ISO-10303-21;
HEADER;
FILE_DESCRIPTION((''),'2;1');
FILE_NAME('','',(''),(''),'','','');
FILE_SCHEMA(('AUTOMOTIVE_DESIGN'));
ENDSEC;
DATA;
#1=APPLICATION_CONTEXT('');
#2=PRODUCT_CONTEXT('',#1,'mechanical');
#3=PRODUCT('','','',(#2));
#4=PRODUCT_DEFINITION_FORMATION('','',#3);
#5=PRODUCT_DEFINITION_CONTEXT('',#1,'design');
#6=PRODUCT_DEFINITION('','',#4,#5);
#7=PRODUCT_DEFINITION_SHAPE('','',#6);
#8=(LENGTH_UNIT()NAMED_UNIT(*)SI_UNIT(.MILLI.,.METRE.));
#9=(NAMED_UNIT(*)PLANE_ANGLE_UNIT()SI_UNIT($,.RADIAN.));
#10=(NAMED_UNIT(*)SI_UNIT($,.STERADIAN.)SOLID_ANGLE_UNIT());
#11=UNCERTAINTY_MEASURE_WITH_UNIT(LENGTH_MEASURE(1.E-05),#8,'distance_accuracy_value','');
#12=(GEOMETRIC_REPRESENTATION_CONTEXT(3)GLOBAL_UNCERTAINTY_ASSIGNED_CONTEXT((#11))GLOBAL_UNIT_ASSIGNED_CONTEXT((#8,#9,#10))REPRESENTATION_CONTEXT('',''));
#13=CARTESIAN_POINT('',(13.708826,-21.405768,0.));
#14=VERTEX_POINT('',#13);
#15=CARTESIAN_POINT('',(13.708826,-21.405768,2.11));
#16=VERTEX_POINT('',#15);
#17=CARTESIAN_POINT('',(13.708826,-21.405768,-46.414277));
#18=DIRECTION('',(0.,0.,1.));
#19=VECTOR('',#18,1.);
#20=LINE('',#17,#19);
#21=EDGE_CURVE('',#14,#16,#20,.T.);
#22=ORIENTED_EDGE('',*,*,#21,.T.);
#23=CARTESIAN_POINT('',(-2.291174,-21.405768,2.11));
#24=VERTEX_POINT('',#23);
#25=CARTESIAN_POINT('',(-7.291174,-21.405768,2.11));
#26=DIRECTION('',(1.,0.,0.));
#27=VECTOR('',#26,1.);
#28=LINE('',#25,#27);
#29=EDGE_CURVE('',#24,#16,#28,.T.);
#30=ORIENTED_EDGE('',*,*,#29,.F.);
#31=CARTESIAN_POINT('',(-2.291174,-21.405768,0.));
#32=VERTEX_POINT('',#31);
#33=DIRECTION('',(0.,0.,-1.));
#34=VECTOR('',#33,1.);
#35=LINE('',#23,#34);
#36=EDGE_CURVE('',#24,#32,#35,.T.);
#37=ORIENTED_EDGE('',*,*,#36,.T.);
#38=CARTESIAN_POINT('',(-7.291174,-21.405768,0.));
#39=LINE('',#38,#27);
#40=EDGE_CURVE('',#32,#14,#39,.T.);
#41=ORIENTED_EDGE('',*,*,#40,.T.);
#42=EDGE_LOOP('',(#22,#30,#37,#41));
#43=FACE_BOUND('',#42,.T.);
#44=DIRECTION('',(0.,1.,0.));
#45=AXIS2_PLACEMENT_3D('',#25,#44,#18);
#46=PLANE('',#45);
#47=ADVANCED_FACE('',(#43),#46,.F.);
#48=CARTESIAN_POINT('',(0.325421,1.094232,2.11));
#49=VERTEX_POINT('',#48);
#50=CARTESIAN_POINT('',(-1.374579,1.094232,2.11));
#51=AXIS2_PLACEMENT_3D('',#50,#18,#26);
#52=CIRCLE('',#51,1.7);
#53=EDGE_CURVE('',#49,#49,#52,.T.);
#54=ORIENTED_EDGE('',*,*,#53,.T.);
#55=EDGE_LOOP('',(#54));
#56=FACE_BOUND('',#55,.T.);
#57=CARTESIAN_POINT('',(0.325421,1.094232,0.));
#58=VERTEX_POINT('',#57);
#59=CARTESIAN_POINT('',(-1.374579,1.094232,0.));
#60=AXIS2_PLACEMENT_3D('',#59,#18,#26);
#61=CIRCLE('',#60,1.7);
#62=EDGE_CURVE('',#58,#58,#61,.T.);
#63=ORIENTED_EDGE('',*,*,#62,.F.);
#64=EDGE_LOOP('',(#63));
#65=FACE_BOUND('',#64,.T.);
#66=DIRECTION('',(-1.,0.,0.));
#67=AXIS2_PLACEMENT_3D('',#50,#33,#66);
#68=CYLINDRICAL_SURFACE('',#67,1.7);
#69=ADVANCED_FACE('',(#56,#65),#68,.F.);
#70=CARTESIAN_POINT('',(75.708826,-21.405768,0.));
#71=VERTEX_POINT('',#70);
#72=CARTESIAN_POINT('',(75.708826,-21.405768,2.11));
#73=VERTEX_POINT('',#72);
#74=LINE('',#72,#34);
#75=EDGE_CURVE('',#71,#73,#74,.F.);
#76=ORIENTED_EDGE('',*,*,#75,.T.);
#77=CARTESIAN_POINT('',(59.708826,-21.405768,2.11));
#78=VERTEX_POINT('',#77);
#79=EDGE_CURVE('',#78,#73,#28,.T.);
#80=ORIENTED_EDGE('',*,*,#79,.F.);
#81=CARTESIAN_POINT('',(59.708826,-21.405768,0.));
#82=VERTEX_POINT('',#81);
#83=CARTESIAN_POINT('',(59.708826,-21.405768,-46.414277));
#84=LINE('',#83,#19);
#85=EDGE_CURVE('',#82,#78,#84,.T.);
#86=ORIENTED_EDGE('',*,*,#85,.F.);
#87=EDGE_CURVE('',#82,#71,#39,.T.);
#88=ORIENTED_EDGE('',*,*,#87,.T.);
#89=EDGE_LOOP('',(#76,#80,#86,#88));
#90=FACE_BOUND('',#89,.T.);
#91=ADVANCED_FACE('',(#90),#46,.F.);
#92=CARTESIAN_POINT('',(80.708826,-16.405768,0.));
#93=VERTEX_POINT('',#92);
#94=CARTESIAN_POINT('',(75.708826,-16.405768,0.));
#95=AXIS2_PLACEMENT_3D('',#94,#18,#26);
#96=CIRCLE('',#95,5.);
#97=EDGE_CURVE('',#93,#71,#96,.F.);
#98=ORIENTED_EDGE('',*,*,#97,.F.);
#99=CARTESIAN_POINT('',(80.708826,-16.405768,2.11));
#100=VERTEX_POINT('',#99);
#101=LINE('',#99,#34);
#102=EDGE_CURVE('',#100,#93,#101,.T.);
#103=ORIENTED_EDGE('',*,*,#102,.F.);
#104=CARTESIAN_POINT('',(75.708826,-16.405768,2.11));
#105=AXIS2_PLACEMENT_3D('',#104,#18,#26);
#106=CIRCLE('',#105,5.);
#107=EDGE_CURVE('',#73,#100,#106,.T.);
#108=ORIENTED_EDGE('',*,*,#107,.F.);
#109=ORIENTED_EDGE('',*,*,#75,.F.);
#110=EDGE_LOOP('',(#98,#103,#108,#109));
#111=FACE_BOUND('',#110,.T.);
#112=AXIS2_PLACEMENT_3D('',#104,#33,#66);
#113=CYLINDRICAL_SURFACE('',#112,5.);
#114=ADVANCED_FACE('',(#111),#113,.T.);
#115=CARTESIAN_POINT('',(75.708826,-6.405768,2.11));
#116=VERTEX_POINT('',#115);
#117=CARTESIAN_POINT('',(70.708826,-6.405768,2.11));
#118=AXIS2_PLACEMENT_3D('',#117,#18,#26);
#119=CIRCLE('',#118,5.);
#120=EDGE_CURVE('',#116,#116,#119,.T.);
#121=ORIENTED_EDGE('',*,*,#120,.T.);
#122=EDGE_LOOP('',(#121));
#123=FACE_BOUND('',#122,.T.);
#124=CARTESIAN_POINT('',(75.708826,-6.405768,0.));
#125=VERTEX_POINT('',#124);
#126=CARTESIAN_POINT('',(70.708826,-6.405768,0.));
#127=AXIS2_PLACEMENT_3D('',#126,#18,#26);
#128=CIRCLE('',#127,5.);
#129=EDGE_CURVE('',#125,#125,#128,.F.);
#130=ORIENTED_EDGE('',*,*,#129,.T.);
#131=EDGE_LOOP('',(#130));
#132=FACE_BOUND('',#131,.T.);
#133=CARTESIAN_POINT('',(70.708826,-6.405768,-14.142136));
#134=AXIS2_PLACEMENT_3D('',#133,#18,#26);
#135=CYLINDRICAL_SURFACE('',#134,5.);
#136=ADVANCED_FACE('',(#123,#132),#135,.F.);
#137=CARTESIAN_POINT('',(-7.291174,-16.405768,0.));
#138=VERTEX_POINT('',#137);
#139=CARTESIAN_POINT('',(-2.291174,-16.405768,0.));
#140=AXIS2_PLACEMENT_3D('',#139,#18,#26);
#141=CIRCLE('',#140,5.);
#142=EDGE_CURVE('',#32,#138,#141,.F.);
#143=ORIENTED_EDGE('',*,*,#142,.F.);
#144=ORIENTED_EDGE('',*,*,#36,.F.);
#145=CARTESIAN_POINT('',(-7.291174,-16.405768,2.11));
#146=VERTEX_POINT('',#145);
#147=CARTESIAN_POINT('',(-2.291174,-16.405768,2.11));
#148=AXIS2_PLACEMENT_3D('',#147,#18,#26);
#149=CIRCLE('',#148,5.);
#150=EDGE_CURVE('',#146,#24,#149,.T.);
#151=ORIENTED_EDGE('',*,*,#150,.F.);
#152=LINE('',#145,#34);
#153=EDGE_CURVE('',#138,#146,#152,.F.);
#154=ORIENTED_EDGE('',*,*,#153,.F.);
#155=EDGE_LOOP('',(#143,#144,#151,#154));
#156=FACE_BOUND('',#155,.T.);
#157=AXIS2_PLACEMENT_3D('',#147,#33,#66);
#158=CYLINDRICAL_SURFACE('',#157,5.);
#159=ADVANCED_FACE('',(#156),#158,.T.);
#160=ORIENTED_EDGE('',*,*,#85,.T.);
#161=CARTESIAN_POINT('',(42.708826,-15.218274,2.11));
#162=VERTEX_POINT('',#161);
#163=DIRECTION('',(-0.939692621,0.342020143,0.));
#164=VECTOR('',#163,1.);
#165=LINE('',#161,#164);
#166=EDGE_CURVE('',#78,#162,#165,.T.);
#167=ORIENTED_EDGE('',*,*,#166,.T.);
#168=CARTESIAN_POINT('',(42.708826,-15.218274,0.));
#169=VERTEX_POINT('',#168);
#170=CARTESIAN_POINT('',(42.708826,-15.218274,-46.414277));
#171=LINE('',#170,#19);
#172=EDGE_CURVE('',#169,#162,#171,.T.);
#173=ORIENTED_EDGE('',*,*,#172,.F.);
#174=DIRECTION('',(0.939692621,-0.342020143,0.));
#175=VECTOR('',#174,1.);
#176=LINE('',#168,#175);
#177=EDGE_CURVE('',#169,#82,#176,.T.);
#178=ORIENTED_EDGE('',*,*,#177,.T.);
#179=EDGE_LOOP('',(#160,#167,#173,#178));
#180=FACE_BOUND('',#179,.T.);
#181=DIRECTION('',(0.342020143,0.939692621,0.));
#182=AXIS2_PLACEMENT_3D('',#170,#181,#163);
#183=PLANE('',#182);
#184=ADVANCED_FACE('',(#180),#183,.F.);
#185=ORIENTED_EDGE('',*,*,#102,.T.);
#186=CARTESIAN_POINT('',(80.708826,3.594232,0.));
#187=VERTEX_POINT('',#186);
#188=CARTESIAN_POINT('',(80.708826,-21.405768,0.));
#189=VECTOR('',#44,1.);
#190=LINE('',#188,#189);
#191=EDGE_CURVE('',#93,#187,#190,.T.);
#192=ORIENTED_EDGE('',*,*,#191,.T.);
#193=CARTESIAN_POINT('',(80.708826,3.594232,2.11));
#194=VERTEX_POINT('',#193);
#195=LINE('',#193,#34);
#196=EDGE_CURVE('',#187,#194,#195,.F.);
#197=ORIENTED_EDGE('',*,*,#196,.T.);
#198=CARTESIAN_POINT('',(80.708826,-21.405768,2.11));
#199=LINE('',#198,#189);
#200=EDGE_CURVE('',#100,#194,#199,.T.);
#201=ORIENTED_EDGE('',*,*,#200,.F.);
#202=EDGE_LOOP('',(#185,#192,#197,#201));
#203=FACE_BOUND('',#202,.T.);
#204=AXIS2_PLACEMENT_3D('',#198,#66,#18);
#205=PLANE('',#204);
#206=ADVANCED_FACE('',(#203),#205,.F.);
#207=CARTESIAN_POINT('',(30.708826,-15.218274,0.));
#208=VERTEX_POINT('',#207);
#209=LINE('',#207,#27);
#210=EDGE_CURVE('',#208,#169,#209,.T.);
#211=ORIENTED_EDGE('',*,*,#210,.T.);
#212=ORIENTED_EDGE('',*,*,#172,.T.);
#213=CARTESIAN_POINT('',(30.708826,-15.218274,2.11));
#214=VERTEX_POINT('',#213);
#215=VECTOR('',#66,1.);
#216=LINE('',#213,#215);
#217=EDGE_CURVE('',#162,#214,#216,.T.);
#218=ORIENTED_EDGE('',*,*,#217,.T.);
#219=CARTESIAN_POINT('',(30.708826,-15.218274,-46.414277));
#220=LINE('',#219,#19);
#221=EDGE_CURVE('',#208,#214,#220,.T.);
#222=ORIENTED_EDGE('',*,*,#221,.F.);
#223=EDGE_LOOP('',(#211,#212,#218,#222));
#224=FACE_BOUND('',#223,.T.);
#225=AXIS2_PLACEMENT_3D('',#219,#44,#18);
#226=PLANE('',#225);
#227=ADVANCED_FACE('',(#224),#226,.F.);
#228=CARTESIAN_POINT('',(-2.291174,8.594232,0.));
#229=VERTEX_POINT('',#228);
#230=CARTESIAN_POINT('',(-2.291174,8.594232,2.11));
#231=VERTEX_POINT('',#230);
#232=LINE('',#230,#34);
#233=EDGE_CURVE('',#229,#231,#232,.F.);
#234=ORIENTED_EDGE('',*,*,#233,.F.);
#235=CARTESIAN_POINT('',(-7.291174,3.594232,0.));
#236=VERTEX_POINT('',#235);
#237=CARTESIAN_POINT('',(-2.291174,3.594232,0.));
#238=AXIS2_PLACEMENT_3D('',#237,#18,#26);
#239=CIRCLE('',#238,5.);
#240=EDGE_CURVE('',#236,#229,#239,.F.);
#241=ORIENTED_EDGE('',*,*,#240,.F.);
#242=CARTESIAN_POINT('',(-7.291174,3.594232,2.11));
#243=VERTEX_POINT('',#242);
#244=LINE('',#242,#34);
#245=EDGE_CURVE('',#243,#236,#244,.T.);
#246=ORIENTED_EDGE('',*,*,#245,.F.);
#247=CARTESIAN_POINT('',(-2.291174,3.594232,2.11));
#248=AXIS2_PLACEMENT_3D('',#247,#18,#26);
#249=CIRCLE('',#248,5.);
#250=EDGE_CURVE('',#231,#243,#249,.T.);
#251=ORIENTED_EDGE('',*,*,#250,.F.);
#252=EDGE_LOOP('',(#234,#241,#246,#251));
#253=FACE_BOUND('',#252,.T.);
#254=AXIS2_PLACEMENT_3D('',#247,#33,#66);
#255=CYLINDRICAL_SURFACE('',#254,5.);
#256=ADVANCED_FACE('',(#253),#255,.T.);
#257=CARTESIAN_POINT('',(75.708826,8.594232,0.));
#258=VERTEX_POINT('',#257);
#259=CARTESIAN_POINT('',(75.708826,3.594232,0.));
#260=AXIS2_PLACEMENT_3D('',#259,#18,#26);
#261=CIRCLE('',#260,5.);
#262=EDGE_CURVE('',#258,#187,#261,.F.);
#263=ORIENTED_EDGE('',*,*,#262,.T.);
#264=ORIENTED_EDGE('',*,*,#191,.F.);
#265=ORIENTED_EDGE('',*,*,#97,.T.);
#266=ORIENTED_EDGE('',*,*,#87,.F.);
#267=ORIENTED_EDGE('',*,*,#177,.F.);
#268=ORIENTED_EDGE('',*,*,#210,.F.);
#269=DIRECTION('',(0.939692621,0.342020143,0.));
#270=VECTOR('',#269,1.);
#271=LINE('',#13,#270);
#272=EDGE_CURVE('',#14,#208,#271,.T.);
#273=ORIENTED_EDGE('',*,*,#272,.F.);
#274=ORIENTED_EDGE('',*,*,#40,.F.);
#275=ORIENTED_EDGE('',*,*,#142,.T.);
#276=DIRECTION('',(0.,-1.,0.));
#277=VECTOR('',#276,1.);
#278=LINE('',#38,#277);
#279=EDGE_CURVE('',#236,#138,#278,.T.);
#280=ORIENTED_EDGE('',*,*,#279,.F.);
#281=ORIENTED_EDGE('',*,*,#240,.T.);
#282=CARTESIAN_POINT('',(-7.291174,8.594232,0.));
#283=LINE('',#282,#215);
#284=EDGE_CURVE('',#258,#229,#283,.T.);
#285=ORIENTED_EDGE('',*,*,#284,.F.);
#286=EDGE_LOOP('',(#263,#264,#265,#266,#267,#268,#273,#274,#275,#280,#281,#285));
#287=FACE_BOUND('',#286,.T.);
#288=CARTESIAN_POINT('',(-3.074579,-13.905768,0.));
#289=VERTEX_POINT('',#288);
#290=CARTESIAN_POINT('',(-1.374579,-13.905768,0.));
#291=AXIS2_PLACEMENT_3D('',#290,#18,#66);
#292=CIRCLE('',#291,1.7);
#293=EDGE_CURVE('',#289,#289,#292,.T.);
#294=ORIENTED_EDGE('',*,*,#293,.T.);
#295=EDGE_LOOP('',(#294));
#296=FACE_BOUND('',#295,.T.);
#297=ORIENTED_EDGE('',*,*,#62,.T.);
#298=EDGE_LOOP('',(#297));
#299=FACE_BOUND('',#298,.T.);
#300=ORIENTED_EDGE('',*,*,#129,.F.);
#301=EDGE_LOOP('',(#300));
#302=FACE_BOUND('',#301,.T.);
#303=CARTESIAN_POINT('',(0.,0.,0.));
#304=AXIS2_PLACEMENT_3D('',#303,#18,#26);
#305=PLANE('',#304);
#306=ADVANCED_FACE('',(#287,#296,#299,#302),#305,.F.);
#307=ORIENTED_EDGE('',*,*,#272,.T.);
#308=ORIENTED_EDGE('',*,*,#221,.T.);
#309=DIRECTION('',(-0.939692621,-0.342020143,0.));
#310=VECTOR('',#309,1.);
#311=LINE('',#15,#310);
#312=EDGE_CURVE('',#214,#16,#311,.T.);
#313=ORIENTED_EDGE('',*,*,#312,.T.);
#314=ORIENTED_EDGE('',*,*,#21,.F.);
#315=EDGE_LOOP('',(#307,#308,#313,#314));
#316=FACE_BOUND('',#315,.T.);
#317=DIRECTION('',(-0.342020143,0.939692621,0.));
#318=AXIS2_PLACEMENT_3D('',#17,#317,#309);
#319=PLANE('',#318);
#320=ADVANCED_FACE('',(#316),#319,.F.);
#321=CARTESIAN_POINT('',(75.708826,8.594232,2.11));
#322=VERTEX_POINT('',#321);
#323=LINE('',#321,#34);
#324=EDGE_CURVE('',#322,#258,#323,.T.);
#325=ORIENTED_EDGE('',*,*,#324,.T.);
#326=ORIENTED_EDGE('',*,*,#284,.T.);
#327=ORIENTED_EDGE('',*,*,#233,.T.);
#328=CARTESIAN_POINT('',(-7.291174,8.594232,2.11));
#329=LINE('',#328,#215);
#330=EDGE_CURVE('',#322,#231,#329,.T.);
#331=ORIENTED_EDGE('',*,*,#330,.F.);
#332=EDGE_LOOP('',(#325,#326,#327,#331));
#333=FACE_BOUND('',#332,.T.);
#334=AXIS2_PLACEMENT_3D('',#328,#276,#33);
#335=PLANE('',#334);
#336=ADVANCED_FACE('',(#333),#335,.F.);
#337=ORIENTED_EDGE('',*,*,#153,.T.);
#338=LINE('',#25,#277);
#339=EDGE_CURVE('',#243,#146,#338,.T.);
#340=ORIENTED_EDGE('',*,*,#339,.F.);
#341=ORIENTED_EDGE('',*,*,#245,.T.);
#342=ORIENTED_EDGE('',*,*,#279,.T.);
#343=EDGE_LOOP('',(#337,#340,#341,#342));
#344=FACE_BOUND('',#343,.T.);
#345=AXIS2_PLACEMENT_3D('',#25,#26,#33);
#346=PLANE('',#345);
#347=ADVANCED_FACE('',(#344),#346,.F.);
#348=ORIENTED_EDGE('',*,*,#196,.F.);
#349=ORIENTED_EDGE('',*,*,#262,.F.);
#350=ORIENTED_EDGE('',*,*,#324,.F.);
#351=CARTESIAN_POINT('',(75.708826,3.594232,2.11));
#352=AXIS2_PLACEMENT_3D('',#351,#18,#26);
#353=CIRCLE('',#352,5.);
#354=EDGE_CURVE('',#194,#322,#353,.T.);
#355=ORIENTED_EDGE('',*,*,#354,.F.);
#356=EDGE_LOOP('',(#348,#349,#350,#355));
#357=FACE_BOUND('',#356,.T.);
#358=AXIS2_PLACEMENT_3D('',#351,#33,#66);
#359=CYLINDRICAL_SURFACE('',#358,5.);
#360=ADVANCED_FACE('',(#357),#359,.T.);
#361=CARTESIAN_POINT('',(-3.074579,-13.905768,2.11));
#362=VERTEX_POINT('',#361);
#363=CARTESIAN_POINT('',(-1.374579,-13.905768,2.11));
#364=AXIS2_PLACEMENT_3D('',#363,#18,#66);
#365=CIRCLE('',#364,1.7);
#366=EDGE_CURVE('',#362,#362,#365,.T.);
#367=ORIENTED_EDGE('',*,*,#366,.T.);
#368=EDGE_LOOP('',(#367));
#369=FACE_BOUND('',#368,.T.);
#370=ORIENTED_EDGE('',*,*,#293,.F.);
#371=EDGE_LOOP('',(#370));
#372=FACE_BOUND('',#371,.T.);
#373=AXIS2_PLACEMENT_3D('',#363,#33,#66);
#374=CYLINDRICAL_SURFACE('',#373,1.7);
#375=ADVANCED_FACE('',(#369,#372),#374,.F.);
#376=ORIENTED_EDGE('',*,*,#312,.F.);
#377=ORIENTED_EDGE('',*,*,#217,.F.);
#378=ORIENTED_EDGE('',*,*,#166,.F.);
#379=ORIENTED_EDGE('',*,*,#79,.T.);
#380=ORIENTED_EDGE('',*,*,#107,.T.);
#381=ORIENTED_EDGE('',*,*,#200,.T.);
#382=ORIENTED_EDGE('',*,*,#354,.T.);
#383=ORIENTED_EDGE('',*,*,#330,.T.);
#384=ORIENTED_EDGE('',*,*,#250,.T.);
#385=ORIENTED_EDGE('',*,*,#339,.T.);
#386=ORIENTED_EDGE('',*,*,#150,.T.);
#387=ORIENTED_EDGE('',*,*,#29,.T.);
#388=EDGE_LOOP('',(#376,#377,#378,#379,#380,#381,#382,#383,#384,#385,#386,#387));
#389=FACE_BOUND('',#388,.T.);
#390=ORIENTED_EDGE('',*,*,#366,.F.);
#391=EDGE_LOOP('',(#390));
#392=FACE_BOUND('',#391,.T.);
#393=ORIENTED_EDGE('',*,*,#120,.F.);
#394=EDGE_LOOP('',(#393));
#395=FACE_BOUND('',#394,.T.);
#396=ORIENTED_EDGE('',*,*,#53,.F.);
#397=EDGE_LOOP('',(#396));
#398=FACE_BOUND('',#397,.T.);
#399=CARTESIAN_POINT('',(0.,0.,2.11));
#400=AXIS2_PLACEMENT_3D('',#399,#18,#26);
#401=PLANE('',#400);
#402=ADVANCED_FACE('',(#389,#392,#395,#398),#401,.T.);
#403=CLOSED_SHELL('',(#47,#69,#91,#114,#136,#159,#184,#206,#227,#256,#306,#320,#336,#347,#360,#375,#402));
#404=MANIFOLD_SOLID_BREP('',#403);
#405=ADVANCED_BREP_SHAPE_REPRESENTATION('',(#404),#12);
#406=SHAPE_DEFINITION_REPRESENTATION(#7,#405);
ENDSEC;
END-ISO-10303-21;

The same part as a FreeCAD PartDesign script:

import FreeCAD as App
import Part
import Sketcher
Q = App.Units.Quantity


def edges_at(feature, points):
    """Names of the edges that pass closest to the given points."""
    edges = feature.Shape.Edges
    near = lambda p: min(range(len(edges)), key=lambda i: edges[i].distToShape(Part.Vertex(*p))[0])
    return sorted({f"Edge{near(p) + 1}" for p in points})


def add_polygon(sketch, points):
    """Adds a closed chain of lines whose ends are joined by coincident constraints."""
    first, n = sketch.GeometryCount, len(points)
    for a, b in zip(points, points[1:] + points[:1]):
        sketch.addGeometry(Part.LineSegment(App.Vector(*a, 0), App.Vector(*b, 0)), False)
    for i in range(n):
        sketch.addConstraint(Sketcher.Constraint("Coincident", first + i, 2, first + (i + 1) % n, 1))

doc = App.newDocument("Part")
params = doc.addObject("Spreadsheet::Sheet", "Params")
for row, (alias, value) in enumerate([
    ("sketch1_diameter", "3.4 mm"),
    ("sketch1_width", "88 mm"),
    ("sketch1_height", "30 mm"),
    ("pad1_length", "2.11 mm"),
    ("sketch2_diameter", "10 mm"),
    ("pocket1_length", "2.11 mm"),
    ("sketch3_width", "46 mm"),
    ("sketch3_width2", "12 mm"),
    ("pocket2_length", "2.11 mm"),
    ("fillet_radius", "5 mm"),
], start=1):
    params.set(f"A{row}", alias)
    params.set(f"B{row}", "=" + value)
    params.setAlias(f"B{row}", alias)

body = doc.addObject("PartDesign::Body", "Body")

sketch1 = body.newObject("Sketcher::SketchObject", "Sketch")
sketch1.AttachmentSupport = (doc.getObject("XY_Plane"), [""])
sketch1.MapMode = "FlatFace"
add_polygon(sketch1, [(-7.3, 8.6), (-7.3, -21.4), (80.7, -21.4), (80.7, 8.6)])
sketch1.addGeometry(Part.Circle(App.Vector(-1.4, -13.9, 0), App.Vector(0, 0, 1), 1.7), False)
sketch1.addGeometry(Part.Circle(App.Vector(-1.4, 1.1, 0), App.Vector(0, 0, 1), 1.7), False)
sketch1.addConstraint(Sketcher.Constraint("Vertical", 0))
sketch1.addConstraint(Sketcher.Constraint("Horizontal", 1))
sketch1.addConstraint(Sketcher.Constraint("Vertical", 2))
sketch1.addConstraint(Sketcher.Constraint("Horizontal", 3))
sketch1.addConstraint(Sketcher.Constraint("Equal", 4, 5))
sketch1.addConstraint(Sketcher.Constraint("Vertical", 4, 3, 5, 3))
sketch1.addConstraint(Sketcher.Constraint("Diameter", 4, Q("3.4 mm")))
sketch1.addConstraint(Sketcher.Constraint("DistanceX", 1, 1, 1, 2, Q("88 mm")))
sketch1.addConstraint(Sketcher.Constraint("DistanceY", 0, 2, 0, 1, Q("30 mm")))
sketch1.addConstraint(Sketcher.Constraint("DistanceY", 4, 3, 5, 3, Q("15 mm")))
sketch1.addConstraint(Sketcher.Constraint("DistanceY", 0, 2, 4, 3, Q("7.5 mm")))
sketch1.addConstraint(Sketcher.Constraint("DistanceX", 4, 3, -1, 1, Q("1.374579 mm")))
sketch1.addConstraint(Sketcher.Constraint("DistanceY", 4, 3, -1, 1, Q("13.905768 mm")))
sketch1.addConstraint(Sketcher.Constraint("DistanceX", 0, 2, -1, 1, Q("7.291174 mm")))
sketch1.setExpression("Constraints[10]", "Params.sketch1_diameter")
sketch1.setExpression("Constraints[11]", "Params.sketch1_width")
sketch1.setExpression("Constraints[12]", "Params.sketch1_height")
pad1 = body.newObject("PartDesign::Pad", "Pad")
pad1.Profile = sketch1
pad1.setExpression("Length", "Params.pad1_length")

sketch2 = body.newObject("Sketcher::SketchObject", "Sketch001")
sketch2.AttachmentSupport = (doc.getObject("XY_Plane"), [""])
sketch2.MapMode = "FlatFace"
sketch2.AttachmentOffset = App.Placement(App.Vector(0, 0, 2.11), App.Rotation())
sketch2.addGeometry(Part.Circle(App.Vector(71, -6, 0), App.Vector(0, 0, 1), 5), False)
sketch2.addConstraint(Sketcher.Constraint("Diameter", 0, Q("10 mm")))
sketch2.addConstraint(Sketcher.Constraint("DistanceX", -1, 1, 0, 3, Q("70.708826 mm")))
sketch2.addConstraint(Sketcher.Constraint("DistanceY", 0, 3, -1, 1, Q("6.405768 mm")))
sketch2.setExpression("Constraints[0]", "Params.sketch2_diameter")
pocket1 = body.newObject("PartDesign::Pocket", "Pocket")
pocket1.Profile = sketch2
pocket1.setExpression("Length", "Params.pocket1_length")

sketch3 = body.newObject("Sketcher::SketchObject", "Sketch002")
sketch3.AttachmentSupport = (doc.getObject("XY_Plane"), [""])
sketch3.MapMode = "FlatFace"
sketch3.AttachmentOffset = App.Placement(App.Vector(0, 0, 2.11), App.Rotation())
add_polygon(sketch3, [(31, -15), (14, -21), (60, -21), (43, -15)])
sketch3.addConstraint(Sketcher.Constraint("Horizontal", 1))
sketch3.addConstraint(Sketcher.Constraint("Horizontal", 3))
sketch3.addConstraint(Sketcher.Constraint("Equal", 0, 2))
sketch3.addConstraint(Sketcher.Constraint("DistanceX", 1, 1, 1, 2, Q("46 mm")))
sketch3.addConstraint(Sketcher.Constraint("DistanceX", 3, 2, 3, 1, Q("12 mm")))
sketch3.addConstraint(Sketcher.Constraint("Angle", 0, Q("-160 deg")))
sketch3.addConstraint(Sketcher.Constraint("DistanceX", -1, 1, 0, 2, Q("13.708826 mm")))
sketch3.addConstraint(Sketcher.Constraint("DistanceY", 0, 2, -1, 1, Q("21.405768 mm")))
sketch3.setExpression("Constraints[7]", "Params.sketch3_width")
sketch3.setExpression("Constraints[8]", "Params.sketch3_width2")
pocket2 = body.newObject("PartDesign::Pocket", "Pocket001")
pocket2.Profile = sketch3
pocket2.setExpression("Length", "Params.pocket2_length")
doc.recompute()

fillet = body.newObject("PartDesign::Fillet", "Fillet")
fillet.Base = (pocket2, edges_at(pocket2, [
    (80.709, 8.594, 1.055),
    (80.709, -21.406, 1.055),
    (-7.291, -21.406, 1.055),
    (-7.291, 8.594, 1.055),
]))
fillet.setExpression("Radius", "Params.fillet_radius")

doc.recompute()
